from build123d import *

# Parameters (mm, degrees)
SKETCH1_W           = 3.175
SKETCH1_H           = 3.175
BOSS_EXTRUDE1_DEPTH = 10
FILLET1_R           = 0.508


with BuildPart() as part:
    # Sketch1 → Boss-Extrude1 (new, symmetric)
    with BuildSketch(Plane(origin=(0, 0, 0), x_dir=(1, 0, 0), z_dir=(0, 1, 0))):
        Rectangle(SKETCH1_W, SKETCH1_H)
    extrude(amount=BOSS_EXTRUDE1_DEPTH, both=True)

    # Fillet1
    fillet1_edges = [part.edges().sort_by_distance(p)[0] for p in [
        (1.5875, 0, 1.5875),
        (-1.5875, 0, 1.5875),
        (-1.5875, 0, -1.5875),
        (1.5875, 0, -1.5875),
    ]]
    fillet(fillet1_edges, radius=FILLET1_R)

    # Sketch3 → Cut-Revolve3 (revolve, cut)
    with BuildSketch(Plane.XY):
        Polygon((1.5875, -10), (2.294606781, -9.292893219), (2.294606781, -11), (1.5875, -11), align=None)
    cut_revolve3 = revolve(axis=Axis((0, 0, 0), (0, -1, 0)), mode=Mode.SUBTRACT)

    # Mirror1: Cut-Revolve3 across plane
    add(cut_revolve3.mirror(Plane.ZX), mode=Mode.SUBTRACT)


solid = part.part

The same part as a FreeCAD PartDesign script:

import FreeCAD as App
import Part
import Sketcher

V = App.Vector
Q = App.Units.Quantity


def edges_at(feature, points):
    """Names of the edges that pass closest to the given points."""
    edges = feature.Shape.Edges
    near = lambda p: min(range(len(edges)), key=lambda i: edges[i].distToShape(Part.Vertex(*p))[0])
    return sorted({f"Edge{near(p) + 1}" for p in points})


def add_polygon(sketch, points):
    """Adds a closed chain of lines whose ends are joined by coincident constraints."""
    first, n = sketch.GeometryCount, len(points)
    for a, b in zip(points, points[1:] + points[:1]):
        sketch.addGeometry(Part.LineSegment(App.Vector(*a, 0), App.Vector(*b, 0)), False)
    for i in range(n):
        sketch.addConstraint(Sketcher.Constraint("Coincident", first + i, 2, first + (i + 1) % n, 1))

doc = App.newDocument("Part")
body = doc.addObject("PartDesign::Body", "Body")

# Sketch on XZ plane
sketch1 = body.newObject("Sketcher::SketchObject", "Sketch")
sketch1.AttachmentSupport = (doc.getObject("XZ_Plane"), [""])
sketch1.MapMode = "FlatFace"
add_polygon(sketch1, [(-1.5875, -1.5875), (-1.5875, 1.5875), (1.5875, 1.5875), (1.5875, -1.5875)])  # lines 0-3
sketch1.addConstraint([
    Sketcher.Constraint("Vertical", 0),
    Sketcher.Constraint("Horizontal", 1),
    Sketcher.Constraint("Vertical", 2),
    Sketcher.Constraint("Horizontal", 3),
    Sketcher.Constraint("Symmetric", 0, 2, 2, 2, -1, 1),
    Sketcher.Constraint("Equal", 3, 0),
    Sketcher.Constraint("DistanceX", 1, 1, 1, 2, Q("3.175 mm")),
])
pad1 = body.newObject("PartDesign::Pad", "Pad")
pad1.Profile = sketch1
pad1.Length = 20
pad1.Midplane = True
doc.recompute()

fillet = body.newObject("PartDesign::Fillet", "Fillet")
fillet.Base = (pad1, edges_at(pad1, [
    (1.587, 0, 1.587),
    (-1.587, 0, 1.587),
    (-1.587, 0, -1.587),
    (1.587, 0, -1.587),
]))
fillet.Radius = 0.508

# Sketch on XY plane
sketch2 = body.newObject("Sketcher::SketchObject", "Sketch001")
sketch2.AttachmentSupport = (doc.getObject("XY_Plane"), [""])
sketch2.MapMode = "FlatFace"
add_polygon(sketch2, [(2.294607, -9.292893), (1.5875, -10), (1.5875, -11), (2.294607, -11)])  # lines 0-3
sketch2.addConstraint([
    Sketcher.Constraint("Vertical", 1),
    Sketcher.Constraint("Horizontal", 2),
    Sketcher.Constraint("Vertical", 3),
    Sketcher.Constraint("DistanceY", 1, 2, 1, 1, Q("1 mm")),
    Sketcher.Constraint("Angle", 0, Q("-135 deg")),
    Sketcher.Constraint("Distance", 0, Q("1 mm")),
    Sketcher.Constraint("DistanceY", 0, 2, -1, 1, Q("10 mm")),
    Sketcher.Constraint("DistanceX", -1, 1, 0, 2, Q("1.5875 mm")),
])
groove = body.newObject("PartDesign::Groove", "Groove")
groove.Profile = sketch2
groove.ReferenceAxis = (sketch2, ["V_Axis"])
groove.Angle = 360
doc.recompute()

mirrored = body.newObject("PartDesign::Mirrored", "Mirrored")
mirrored.Originals = [groove]
mirrored.MirrorPlane = (doc.getObject("XZ_Plane"), [""])
body.Tip = mirrored

doc.recompute()
